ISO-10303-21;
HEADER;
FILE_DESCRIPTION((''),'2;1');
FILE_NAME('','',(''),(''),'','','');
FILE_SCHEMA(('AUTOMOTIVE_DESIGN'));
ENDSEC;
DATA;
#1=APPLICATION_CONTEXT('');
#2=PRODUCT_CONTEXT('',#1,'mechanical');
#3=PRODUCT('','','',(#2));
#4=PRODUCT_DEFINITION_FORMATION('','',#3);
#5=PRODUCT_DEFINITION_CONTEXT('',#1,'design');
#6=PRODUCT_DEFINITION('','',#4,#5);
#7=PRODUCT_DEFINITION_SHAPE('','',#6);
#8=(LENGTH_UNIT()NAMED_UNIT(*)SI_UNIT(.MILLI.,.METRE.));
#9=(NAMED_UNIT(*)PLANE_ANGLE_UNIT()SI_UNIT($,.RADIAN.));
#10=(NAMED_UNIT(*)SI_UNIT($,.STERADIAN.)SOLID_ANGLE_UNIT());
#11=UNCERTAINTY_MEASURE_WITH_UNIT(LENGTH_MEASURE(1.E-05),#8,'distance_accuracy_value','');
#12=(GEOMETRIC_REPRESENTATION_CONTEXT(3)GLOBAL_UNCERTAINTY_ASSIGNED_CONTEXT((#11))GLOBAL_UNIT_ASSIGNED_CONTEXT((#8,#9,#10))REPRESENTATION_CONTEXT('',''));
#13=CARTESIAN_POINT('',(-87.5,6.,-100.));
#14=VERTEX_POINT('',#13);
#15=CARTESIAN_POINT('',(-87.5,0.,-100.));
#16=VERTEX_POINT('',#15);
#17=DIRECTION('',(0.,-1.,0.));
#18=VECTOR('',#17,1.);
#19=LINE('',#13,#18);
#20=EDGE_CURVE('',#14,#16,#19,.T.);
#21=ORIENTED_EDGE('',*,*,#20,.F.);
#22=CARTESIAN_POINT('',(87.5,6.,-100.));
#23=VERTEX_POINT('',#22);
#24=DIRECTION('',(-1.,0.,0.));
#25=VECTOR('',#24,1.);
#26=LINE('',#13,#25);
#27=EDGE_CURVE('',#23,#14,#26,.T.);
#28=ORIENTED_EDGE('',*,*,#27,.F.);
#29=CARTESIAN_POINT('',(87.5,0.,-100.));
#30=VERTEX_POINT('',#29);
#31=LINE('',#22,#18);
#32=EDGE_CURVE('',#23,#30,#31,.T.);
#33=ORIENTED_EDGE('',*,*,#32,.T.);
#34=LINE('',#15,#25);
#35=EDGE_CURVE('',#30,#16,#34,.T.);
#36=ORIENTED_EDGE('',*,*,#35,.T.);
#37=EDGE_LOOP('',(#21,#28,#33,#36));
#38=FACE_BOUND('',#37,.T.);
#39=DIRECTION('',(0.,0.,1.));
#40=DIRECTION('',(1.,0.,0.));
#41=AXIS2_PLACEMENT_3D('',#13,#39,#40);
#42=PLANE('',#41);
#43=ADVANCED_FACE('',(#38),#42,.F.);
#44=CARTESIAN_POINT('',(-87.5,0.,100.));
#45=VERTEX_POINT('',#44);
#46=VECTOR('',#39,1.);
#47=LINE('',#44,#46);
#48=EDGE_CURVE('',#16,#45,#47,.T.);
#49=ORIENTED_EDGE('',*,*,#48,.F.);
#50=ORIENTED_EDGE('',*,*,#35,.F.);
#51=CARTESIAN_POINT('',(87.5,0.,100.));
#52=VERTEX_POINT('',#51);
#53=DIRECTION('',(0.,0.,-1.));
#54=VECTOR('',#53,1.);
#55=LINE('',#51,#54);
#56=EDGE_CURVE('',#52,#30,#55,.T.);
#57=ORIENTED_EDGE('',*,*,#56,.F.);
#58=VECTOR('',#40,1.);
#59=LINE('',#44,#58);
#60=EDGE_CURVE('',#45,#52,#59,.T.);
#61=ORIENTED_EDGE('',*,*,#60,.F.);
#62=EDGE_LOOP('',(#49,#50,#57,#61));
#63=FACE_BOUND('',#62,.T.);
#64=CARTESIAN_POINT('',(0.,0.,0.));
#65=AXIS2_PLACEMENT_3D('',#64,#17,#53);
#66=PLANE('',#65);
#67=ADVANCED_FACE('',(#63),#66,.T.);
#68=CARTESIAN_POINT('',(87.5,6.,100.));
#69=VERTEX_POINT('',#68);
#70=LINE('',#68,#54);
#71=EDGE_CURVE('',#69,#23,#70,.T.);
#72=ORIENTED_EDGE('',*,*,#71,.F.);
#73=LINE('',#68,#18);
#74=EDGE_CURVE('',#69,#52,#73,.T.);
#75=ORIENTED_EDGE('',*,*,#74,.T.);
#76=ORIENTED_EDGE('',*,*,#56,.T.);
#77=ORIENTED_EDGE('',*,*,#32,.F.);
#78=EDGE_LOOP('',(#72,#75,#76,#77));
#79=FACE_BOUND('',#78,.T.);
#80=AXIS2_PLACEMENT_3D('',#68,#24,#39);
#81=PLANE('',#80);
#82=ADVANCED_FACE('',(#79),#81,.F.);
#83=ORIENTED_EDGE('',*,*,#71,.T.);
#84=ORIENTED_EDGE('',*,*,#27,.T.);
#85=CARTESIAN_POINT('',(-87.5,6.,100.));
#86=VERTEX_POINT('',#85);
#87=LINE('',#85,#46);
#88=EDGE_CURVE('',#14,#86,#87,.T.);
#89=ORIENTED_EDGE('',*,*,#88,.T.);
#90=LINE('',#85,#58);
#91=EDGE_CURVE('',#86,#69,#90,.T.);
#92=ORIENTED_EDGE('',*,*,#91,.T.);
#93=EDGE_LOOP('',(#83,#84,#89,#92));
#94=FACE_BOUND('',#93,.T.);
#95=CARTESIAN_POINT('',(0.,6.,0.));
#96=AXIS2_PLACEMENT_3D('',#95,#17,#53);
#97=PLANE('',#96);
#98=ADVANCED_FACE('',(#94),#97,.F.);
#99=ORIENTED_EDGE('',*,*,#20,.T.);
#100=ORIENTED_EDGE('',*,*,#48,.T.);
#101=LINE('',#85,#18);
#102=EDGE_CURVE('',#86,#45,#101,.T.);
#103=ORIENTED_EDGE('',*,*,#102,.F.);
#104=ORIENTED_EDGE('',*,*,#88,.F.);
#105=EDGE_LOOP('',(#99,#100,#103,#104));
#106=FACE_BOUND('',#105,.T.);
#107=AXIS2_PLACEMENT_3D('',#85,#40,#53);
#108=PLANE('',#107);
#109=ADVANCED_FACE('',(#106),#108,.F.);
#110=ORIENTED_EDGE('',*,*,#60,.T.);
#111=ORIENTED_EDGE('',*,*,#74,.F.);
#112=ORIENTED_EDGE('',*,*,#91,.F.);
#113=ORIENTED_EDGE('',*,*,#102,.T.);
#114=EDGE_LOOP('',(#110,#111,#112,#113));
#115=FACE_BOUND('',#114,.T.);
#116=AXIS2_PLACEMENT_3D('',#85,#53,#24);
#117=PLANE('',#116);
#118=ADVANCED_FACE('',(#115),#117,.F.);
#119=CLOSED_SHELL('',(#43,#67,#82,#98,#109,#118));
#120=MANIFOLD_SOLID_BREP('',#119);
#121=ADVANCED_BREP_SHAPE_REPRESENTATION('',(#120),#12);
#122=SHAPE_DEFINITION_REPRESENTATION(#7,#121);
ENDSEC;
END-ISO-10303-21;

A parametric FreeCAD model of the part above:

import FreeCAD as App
import Part
import Sketcher
from FreeCAD import Vector


def add_polygon(sketch, points):
    """Adds a closed chain of lines whose ends are joined by coincident constraints."""
    first, n = sketch.GeometryCount, len(points)
    for a, b in zip(points, points[1:] + points[:1]):
        sketch.addGeometry(Part.LineSegment(App.Vector(*a, 0), App.Vector(*b, 0)), False)
    for i in range(n):
        sketch.addConstraint(Sketcher.Constraint("Coincident", first + i, 2, first + (i + 1) % n, 1))

doc = App.newDocument("Part")
body = doc.addObject("PartDesign::Body", "Body")

sketch1 = body.newObject("Sketcher::SketchObject", "Sketch")
sketch1.AttachmentSupport = (doc.getObject("XZ_Plane"), [""])
sketch1.MapMode = "FlatFace"
add_polygon(sketch1, [(-88, -100), (-88, 100), (88, 100), (88, -100)])
sketch1.addConstraint([
    Sketcher.Constraint("Vertical", 0),
    Sketcher.Constraint("Horizontal", 1),
    Sketcher.Constraint("Vertical", 2),
    Sketcher.Constraint("Horizontal", 3),
    Sketcher.Constraint("Symmetric", 0, 2, 2, 2, -1, 1),
    Sketcher.Constraint("DistanceX", 1, 1, 1, 2, 175.0),
    Sketcher.Constraint("DistanceY", 0, 1, 0, 2, 200.0),
])
pad1 = body.newObject("PartDesign::Pad", "Pad")
pad1.Profile = sketch1
pad1.Length = 6
pad1.Reversed = True

doc.recompute()
